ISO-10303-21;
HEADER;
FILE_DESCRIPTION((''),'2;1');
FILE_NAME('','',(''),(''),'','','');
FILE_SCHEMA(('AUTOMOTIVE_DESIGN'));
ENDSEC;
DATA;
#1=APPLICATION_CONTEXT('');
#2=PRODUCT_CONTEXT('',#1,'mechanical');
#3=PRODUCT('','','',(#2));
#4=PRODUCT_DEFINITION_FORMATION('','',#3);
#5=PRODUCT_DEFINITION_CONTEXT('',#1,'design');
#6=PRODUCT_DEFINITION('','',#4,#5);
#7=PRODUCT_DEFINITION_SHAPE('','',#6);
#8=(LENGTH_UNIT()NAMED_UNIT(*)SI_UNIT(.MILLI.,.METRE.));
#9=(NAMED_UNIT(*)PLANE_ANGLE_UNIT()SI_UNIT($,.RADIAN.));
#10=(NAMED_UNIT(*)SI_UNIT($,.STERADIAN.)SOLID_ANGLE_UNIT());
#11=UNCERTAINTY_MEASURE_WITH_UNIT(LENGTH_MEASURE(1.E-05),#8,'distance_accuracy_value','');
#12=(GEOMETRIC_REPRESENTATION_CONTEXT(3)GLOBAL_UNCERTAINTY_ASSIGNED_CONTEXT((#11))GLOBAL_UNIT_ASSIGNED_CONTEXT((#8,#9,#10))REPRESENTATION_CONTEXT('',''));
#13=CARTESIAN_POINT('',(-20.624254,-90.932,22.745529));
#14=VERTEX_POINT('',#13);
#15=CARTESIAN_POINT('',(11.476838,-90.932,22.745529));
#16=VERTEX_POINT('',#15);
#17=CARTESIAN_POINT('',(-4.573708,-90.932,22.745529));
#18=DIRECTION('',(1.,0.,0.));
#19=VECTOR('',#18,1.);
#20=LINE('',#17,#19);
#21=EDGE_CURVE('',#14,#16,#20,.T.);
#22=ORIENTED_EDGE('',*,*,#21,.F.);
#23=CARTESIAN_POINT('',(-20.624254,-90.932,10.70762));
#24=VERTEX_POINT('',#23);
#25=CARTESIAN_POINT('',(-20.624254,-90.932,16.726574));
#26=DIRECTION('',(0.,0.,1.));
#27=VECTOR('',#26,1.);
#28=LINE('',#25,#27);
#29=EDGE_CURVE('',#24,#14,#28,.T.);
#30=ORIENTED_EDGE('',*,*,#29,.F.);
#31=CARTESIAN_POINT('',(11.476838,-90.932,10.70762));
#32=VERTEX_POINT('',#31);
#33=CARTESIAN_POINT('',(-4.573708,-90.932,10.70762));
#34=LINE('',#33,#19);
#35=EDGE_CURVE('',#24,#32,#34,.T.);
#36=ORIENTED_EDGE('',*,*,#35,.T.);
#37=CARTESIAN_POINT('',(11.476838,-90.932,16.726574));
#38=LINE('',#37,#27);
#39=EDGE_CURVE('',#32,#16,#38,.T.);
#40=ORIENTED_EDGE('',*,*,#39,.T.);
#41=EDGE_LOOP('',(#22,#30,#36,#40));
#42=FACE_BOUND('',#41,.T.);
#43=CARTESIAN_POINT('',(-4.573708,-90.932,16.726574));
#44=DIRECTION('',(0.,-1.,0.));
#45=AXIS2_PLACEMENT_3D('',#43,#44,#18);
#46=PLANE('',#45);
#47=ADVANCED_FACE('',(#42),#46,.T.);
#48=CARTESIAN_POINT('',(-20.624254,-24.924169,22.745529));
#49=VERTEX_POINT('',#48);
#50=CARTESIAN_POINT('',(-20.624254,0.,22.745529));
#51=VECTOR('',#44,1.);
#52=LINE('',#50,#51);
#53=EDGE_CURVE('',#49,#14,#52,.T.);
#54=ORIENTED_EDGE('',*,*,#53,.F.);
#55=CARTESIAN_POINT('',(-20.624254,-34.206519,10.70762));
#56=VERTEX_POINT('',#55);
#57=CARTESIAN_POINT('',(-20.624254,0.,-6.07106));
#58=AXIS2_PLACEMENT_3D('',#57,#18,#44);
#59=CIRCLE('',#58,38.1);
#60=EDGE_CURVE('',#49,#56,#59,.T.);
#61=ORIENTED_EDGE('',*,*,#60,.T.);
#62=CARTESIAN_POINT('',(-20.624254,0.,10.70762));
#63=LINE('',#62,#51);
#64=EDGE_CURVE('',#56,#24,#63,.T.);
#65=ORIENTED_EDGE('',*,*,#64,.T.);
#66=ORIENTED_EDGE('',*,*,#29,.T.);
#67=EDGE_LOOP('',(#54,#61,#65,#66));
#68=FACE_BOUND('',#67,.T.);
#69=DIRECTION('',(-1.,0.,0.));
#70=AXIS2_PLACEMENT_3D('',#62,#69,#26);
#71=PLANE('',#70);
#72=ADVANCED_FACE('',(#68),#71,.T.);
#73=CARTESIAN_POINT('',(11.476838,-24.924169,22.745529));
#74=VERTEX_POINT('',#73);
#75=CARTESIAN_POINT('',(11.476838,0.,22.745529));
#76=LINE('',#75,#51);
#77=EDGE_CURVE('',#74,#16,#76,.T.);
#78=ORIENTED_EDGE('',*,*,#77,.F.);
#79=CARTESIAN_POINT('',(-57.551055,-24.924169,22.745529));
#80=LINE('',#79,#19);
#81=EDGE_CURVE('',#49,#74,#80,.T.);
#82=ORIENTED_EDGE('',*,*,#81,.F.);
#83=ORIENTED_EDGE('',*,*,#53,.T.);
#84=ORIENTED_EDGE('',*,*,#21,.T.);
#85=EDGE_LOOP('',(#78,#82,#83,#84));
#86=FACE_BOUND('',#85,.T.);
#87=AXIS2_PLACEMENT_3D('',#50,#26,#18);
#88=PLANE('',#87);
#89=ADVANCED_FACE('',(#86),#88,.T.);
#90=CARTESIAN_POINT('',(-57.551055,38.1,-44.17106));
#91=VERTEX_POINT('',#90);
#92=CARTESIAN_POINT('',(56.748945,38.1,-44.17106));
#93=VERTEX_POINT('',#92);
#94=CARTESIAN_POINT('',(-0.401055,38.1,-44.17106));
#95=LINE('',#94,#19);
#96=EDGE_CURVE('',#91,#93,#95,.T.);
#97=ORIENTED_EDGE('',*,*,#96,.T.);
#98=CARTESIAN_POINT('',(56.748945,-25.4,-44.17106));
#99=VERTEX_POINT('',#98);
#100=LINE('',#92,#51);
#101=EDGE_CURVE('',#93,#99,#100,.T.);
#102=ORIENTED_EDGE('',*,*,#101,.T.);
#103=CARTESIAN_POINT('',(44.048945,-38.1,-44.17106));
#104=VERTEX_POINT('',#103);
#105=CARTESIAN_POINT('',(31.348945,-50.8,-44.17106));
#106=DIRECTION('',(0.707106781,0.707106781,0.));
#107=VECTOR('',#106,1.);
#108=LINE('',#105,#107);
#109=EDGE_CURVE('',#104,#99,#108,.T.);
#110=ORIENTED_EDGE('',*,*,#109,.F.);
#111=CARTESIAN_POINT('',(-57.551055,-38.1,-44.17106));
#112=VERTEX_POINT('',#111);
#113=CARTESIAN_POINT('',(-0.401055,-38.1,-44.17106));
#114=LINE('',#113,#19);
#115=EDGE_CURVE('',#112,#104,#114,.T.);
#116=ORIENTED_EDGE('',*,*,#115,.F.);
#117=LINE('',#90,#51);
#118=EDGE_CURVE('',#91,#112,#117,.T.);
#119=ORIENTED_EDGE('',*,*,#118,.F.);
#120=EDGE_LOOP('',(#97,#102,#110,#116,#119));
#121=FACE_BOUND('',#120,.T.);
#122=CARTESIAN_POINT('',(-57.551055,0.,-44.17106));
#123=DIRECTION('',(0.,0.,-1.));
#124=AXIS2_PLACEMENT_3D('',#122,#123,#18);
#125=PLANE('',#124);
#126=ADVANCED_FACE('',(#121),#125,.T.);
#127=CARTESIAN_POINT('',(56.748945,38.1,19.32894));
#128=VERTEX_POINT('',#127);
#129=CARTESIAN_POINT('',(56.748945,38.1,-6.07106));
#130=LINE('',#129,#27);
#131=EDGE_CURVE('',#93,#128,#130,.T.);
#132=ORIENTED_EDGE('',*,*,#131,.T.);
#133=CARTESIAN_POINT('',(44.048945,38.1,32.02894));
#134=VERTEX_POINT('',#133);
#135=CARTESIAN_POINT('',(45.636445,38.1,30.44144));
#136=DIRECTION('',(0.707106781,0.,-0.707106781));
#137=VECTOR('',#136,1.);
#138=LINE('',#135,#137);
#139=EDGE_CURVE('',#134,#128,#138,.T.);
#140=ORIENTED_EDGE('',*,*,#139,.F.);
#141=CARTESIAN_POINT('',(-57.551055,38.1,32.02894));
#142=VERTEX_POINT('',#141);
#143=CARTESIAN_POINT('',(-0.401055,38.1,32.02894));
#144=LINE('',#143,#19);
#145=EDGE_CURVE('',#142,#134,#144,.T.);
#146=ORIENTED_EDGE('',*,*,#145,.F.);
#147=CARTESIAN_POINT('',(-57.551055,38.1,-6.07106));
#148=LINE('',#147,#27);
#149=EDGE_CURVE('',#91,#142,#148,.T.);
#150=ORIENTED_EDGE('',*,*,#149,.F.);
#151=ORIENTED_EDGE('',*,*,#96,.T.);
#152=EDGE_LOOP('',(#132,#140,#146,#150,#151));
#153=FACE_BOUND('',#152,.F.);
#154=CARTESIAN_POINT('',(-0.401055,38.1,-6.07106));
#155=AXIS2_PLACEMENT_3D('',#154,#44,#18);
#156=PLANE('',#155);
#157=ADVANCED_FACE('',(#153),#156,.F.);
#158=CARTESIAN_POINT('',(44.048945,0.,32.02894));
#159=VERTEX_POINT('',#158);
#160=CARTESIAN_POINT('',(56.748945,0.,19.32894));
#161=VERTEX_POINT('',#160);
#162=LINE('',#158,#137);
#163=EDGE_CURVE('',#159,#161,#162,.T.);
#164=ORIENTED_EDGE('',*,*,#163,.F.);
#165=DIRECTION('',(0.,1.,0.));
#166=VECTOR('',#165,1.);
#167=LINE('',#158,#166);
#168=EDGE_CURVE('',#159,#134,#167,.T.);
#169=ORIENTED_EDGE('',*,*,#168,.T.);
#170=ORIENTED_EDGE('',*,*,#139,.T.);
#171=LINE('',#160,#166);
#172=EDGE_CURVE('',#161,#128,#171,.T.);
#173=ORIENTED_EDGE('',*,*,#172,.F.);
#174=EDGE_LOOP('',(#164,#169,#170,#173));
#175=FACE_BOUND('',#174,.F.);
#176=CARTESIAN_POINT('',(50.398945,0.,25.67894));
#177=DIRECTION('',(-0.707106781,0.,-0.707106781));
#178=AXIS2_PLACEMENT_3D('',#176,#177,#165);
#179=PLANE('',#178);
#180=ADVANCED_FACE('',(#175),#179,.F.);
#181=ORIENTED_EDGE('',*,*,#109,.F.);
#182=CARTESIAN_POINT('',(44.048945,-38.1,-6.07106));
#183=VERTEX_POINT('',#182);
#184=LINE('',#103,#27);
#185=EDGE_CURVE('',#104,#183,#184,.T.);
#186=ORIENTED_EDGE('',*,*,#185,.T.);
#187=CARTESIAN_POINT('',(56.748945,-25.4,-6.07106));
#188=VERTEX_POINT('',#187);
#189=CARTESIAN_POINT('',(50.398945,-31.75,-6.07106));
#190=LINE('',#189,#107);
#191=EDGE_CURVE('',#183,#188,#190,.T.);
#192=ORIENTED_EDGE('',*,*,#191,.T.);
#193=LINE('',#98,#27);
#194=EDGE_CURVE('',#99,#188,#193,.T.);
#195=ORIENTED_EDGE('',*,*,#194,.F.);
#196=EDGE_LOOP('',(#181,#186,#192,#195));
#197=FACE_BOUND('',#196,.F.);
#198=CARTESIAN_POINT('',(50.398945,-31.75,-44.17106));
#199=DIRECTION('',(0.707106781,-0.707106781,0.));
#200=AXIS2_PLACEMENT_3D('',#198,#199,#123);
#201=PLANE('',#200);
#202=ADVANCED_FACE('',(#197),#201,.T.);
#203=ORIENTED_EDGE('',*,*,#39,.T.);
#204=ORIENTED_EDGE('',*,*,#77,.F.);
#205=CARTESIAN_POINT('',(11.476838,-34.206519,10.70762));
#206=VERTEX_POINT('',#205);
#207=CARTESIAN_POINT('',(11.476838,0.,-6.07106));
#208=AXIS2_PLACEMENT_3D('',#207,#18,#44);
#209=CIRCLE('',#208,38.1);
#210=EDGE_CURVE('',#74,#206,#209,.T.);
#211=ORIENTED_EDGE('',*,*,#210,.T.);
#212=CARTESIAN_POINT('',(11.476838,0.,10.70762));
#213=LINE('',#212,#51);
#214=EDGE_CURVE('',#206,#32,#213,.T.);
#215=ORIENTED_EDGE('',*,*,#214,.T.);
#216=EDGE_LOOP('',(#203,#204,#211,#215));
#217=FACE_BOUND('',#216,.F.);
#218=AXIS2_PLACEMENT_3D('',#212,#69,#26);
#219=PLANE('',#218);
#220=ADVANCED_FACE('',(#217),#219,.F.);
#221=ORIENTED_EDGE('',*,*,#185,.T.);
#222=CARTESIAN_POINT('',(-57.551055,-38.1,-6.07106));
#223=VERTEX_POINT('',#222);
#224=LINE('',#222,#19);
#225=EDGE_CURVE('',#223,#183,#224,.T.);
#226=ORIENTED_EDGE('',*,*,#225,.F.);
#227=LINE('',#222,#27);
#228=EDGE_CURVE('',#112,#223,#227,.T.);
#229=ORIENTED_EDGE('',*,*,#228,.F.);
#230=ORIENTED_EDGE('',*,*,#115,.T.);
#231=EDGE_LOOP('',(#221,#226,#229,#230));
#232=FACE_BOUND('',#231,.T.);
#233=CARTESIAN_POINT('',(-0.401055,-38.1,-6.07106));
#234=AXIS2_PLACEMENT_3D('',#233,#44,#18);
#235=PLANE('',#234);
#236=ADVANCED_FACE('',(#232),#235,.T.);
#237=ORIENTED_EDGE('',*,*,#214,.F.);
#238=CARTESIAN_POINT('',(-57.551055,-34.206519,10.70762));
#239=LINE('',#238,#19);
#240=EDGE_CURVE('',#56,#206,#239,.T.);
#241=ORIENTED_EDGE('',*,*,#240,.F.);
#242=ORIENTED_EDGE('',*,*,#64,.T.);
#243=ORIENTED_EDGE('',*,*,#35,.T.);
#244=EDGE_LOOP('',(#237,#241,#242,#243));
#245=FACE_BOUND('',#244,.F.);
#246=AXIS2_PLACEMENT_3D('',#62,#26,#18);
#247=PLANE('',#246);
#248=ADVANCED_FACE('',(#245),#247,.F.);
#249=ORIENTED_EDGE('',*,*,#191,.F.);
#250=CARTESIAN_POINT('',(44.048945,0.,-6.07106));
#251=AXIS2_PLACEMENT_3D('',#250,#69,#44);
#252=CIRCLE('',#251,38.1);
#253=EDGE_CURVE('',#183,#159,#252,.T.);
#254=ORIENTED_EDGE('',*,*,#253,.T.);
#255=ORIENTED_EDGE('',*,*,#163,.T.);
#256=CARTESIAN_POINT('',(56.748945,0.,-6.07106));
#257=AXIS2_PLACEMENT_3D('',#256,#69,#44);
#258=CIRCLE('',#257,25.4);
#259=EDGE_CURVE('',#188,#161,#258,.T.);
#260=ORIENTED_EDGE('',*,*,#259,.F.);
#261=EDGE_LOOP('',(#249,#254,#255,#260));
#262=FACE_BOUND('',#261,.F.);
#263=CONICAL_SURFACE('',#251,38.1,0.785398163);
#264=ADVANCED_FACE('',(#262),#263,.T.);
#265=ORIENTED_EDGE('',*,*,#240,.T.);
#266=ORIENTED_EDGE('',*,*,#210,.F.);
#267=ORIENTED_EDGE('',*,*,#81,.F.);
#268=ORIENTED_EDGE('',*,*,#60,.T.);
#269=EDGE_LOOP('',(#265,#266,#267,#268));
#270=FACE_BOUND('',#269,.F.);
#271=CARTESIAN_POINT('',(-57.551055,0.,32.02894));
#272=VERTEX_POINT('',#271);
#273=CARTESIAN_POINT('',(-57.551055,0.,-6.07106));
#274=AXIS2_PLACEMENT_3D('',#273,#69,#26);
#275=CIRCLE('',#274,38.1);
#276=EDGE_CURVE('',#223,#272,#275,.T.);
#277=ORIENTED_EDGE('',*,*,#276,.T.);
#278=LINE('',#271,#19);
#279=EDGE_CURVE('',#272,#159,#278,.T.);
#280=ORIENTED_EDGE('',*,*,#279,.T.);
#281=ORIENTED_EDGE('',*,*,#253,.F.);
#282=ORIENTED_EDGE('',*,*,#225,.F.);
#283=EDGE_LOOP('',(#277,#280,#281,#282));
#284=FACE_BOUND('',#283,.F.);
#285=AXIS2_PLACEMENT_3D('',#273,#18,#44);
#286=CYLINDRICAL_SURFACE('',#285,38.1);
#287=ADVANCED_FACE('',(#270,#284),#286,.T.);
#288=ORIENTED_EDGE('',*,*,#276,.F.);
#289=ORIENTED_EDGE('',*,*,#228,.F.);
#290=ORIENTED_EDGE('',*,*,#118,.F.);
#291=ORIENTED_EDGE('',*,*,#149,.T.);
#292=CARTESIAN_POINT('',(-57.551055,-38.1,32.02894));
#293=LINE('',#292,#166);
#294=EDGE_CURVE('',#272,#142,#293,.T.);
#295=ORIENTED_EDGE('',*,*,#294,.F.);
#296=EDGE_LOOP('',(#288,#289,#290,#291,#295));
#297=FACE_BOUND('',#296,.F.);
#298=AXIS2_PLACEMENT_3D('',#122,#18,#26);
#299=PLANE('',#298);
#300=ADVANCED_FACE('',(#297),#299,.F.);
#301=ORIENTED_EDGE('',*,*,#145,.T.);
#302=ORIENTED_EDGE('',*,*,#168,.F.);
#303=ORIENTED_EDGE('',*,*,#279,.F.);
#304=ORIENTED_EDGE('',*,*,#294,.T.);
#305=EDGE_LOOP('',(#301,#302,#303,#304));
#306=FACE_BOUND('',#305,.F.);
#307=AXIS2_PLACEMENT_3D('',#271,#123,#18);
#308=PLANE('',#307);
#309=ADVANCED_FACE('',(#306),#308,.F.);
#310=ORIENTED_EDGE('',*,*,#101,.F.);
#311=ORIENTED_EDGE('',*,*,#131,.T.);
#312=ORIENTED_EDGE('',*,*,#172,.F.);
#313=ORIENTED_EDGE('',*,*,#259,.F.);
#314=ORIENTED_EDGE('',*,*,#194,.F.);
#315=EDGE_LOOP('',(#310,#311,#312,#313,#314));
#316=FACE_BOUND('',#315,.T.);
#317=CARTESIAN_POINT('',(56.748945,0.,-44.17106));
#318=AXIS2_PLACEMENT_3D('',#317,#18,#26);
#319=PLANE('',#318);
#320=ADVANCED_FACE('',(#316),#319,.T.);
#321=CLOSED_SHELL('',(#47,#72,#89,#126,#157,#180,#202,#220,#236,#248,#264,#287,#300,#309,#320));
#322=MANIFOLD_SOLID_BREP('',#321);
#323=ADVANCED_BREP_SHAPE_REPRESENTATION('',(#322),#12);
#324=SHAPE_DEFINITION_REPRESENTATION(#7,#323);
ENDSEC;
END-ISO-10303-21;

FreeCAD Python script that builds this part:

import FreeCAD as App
import Part
import Sketcher
Q = App.Units.Quantity


def edges_at(feature, points):
    """Names of the edges that pass closest to the given points."""
    edges = feature.Shape.Edges
    near = lambda p: min(range(len(edges)), key=lambda i: edges[i].distToShape(Part.Vertex(*p))[0])
    return sorted({f"Edge{near(p) + 1}" for p in points})


def add_polygon(sketch, points):
    """Adds a closed chain of lines whose ends are joined by coincident constraints."""
    first, n = sketch.GeometryCount, len(points)
    for a, b in zip(points, points[1:] + points[:1]):
        sketch.addGeometry(Part.LineSegment(App.Vector(*a, 0), App.Vector(*b, 0)), False)
    for i in range(n):
        sketch.addConstraint(Sketcher.Constraint("Coincident", first + i, 2, first + (i + 1) % n, 1))

doc = App.newDocument("Part")
body = doc.addObject("PartDesign::Body", "Body")

# Sketch on XZ plane
sketch1 = body.newObject("Sketcher::SketchObject", "Sketch")
sketch1.AttachmentSupport = (doc.getObject("XZ_Plane"), [""])
sketch1.MapMode = "FlatFace"
add_polygon(sketch1, [(-58, 32), (-58, -44), (57, -44), (57, 32)])  # lines 0-3
sketch1.addConstraint([
    Sketcher.Constraint("Vertical", 0),
    Sketcher.Constraint("Horizontal", 1),
    Sketcher.Constraint("Vertical", 2),
    Sketcher.Constraint("Horizontal", 3),
    Sketcher.Constraint("DistanceY", 0, 2, 0, 1, Q("3 in")),
    Sketcher.Constraint("DistanceX", 1, 1, 1, 2, Q("4.5 in")),
    Sketcher.Constraint("DistanceY", 0, 2, -1, 1, Q("44.17106 mm")),
    Sketcher.Constraint("DistanceX", 0, 2, -1, 1, Q("57.551055 mm")),
])
pad1 = body.newObject("PartDesign::Pad", "Pad")
pad1.Profile = sketch1
pad1.Length = Q("3 in")
pad1.Midplane = True
doc.recompute()

fillet = body.newObject("PartDesign::Fillet", "Fillet")
fillet.Base = (pad1, edges_at(pad1, [(-0.401, -38.1, 32.029)]))
fillet.Radius = Q("1.5 in")
doc.recompute()

chamfer = body.newObject("PartDesign::Chamfer", "Chamfer")
chamfer.Base = (fillet, edges_at(fillet, [(56.749, 19.05, 32.029)]))
chamfer.Size = Q("0.5 in")

# Sketch on XZ plane
sketch2 = body.newObject("Sketcher::SketchObject", "Sketch001")
sketch2.AttachmentSupport = (doc.getObject("XZ_Plane"), [""])
sketch2.MapMode = "FlatFace"
add_polygon(sketch2, [(-21, 23), (-21, 11), (11, 11), (11, 23)])  # lines 0-3
sketch2.addConstraint([
    Sketcher.Constraint("Vertical", 0),
    Sketcher.Constraint("Horizontal", 1),
    Sketcher.Constraint("Vertical", 2),
    Sketcher.Constraint("Horizontal", 3),
    Sketcher.Constraint("DistanceX", 1, 1, 1, 2, Q("32.101092 mm")),
    Sketcher.Constraint("DistanceY", 0, 2, 0, 1, Q("12.03791 mm")),
    Sketcher.Constraint("DistanceY", -1, 1, 0, 2, Q("10.70762 mm")),
    Sketcher.Constraint("DistanceX", -1, 1, 1, 2, Q("11.476838 mm")),
])
pad2 = body.newObject("PartDesign::Pad", "Pad001")
pad2.Profile = sketch2
pad2.Length = Q("3.58 in")

doc.recompute()
